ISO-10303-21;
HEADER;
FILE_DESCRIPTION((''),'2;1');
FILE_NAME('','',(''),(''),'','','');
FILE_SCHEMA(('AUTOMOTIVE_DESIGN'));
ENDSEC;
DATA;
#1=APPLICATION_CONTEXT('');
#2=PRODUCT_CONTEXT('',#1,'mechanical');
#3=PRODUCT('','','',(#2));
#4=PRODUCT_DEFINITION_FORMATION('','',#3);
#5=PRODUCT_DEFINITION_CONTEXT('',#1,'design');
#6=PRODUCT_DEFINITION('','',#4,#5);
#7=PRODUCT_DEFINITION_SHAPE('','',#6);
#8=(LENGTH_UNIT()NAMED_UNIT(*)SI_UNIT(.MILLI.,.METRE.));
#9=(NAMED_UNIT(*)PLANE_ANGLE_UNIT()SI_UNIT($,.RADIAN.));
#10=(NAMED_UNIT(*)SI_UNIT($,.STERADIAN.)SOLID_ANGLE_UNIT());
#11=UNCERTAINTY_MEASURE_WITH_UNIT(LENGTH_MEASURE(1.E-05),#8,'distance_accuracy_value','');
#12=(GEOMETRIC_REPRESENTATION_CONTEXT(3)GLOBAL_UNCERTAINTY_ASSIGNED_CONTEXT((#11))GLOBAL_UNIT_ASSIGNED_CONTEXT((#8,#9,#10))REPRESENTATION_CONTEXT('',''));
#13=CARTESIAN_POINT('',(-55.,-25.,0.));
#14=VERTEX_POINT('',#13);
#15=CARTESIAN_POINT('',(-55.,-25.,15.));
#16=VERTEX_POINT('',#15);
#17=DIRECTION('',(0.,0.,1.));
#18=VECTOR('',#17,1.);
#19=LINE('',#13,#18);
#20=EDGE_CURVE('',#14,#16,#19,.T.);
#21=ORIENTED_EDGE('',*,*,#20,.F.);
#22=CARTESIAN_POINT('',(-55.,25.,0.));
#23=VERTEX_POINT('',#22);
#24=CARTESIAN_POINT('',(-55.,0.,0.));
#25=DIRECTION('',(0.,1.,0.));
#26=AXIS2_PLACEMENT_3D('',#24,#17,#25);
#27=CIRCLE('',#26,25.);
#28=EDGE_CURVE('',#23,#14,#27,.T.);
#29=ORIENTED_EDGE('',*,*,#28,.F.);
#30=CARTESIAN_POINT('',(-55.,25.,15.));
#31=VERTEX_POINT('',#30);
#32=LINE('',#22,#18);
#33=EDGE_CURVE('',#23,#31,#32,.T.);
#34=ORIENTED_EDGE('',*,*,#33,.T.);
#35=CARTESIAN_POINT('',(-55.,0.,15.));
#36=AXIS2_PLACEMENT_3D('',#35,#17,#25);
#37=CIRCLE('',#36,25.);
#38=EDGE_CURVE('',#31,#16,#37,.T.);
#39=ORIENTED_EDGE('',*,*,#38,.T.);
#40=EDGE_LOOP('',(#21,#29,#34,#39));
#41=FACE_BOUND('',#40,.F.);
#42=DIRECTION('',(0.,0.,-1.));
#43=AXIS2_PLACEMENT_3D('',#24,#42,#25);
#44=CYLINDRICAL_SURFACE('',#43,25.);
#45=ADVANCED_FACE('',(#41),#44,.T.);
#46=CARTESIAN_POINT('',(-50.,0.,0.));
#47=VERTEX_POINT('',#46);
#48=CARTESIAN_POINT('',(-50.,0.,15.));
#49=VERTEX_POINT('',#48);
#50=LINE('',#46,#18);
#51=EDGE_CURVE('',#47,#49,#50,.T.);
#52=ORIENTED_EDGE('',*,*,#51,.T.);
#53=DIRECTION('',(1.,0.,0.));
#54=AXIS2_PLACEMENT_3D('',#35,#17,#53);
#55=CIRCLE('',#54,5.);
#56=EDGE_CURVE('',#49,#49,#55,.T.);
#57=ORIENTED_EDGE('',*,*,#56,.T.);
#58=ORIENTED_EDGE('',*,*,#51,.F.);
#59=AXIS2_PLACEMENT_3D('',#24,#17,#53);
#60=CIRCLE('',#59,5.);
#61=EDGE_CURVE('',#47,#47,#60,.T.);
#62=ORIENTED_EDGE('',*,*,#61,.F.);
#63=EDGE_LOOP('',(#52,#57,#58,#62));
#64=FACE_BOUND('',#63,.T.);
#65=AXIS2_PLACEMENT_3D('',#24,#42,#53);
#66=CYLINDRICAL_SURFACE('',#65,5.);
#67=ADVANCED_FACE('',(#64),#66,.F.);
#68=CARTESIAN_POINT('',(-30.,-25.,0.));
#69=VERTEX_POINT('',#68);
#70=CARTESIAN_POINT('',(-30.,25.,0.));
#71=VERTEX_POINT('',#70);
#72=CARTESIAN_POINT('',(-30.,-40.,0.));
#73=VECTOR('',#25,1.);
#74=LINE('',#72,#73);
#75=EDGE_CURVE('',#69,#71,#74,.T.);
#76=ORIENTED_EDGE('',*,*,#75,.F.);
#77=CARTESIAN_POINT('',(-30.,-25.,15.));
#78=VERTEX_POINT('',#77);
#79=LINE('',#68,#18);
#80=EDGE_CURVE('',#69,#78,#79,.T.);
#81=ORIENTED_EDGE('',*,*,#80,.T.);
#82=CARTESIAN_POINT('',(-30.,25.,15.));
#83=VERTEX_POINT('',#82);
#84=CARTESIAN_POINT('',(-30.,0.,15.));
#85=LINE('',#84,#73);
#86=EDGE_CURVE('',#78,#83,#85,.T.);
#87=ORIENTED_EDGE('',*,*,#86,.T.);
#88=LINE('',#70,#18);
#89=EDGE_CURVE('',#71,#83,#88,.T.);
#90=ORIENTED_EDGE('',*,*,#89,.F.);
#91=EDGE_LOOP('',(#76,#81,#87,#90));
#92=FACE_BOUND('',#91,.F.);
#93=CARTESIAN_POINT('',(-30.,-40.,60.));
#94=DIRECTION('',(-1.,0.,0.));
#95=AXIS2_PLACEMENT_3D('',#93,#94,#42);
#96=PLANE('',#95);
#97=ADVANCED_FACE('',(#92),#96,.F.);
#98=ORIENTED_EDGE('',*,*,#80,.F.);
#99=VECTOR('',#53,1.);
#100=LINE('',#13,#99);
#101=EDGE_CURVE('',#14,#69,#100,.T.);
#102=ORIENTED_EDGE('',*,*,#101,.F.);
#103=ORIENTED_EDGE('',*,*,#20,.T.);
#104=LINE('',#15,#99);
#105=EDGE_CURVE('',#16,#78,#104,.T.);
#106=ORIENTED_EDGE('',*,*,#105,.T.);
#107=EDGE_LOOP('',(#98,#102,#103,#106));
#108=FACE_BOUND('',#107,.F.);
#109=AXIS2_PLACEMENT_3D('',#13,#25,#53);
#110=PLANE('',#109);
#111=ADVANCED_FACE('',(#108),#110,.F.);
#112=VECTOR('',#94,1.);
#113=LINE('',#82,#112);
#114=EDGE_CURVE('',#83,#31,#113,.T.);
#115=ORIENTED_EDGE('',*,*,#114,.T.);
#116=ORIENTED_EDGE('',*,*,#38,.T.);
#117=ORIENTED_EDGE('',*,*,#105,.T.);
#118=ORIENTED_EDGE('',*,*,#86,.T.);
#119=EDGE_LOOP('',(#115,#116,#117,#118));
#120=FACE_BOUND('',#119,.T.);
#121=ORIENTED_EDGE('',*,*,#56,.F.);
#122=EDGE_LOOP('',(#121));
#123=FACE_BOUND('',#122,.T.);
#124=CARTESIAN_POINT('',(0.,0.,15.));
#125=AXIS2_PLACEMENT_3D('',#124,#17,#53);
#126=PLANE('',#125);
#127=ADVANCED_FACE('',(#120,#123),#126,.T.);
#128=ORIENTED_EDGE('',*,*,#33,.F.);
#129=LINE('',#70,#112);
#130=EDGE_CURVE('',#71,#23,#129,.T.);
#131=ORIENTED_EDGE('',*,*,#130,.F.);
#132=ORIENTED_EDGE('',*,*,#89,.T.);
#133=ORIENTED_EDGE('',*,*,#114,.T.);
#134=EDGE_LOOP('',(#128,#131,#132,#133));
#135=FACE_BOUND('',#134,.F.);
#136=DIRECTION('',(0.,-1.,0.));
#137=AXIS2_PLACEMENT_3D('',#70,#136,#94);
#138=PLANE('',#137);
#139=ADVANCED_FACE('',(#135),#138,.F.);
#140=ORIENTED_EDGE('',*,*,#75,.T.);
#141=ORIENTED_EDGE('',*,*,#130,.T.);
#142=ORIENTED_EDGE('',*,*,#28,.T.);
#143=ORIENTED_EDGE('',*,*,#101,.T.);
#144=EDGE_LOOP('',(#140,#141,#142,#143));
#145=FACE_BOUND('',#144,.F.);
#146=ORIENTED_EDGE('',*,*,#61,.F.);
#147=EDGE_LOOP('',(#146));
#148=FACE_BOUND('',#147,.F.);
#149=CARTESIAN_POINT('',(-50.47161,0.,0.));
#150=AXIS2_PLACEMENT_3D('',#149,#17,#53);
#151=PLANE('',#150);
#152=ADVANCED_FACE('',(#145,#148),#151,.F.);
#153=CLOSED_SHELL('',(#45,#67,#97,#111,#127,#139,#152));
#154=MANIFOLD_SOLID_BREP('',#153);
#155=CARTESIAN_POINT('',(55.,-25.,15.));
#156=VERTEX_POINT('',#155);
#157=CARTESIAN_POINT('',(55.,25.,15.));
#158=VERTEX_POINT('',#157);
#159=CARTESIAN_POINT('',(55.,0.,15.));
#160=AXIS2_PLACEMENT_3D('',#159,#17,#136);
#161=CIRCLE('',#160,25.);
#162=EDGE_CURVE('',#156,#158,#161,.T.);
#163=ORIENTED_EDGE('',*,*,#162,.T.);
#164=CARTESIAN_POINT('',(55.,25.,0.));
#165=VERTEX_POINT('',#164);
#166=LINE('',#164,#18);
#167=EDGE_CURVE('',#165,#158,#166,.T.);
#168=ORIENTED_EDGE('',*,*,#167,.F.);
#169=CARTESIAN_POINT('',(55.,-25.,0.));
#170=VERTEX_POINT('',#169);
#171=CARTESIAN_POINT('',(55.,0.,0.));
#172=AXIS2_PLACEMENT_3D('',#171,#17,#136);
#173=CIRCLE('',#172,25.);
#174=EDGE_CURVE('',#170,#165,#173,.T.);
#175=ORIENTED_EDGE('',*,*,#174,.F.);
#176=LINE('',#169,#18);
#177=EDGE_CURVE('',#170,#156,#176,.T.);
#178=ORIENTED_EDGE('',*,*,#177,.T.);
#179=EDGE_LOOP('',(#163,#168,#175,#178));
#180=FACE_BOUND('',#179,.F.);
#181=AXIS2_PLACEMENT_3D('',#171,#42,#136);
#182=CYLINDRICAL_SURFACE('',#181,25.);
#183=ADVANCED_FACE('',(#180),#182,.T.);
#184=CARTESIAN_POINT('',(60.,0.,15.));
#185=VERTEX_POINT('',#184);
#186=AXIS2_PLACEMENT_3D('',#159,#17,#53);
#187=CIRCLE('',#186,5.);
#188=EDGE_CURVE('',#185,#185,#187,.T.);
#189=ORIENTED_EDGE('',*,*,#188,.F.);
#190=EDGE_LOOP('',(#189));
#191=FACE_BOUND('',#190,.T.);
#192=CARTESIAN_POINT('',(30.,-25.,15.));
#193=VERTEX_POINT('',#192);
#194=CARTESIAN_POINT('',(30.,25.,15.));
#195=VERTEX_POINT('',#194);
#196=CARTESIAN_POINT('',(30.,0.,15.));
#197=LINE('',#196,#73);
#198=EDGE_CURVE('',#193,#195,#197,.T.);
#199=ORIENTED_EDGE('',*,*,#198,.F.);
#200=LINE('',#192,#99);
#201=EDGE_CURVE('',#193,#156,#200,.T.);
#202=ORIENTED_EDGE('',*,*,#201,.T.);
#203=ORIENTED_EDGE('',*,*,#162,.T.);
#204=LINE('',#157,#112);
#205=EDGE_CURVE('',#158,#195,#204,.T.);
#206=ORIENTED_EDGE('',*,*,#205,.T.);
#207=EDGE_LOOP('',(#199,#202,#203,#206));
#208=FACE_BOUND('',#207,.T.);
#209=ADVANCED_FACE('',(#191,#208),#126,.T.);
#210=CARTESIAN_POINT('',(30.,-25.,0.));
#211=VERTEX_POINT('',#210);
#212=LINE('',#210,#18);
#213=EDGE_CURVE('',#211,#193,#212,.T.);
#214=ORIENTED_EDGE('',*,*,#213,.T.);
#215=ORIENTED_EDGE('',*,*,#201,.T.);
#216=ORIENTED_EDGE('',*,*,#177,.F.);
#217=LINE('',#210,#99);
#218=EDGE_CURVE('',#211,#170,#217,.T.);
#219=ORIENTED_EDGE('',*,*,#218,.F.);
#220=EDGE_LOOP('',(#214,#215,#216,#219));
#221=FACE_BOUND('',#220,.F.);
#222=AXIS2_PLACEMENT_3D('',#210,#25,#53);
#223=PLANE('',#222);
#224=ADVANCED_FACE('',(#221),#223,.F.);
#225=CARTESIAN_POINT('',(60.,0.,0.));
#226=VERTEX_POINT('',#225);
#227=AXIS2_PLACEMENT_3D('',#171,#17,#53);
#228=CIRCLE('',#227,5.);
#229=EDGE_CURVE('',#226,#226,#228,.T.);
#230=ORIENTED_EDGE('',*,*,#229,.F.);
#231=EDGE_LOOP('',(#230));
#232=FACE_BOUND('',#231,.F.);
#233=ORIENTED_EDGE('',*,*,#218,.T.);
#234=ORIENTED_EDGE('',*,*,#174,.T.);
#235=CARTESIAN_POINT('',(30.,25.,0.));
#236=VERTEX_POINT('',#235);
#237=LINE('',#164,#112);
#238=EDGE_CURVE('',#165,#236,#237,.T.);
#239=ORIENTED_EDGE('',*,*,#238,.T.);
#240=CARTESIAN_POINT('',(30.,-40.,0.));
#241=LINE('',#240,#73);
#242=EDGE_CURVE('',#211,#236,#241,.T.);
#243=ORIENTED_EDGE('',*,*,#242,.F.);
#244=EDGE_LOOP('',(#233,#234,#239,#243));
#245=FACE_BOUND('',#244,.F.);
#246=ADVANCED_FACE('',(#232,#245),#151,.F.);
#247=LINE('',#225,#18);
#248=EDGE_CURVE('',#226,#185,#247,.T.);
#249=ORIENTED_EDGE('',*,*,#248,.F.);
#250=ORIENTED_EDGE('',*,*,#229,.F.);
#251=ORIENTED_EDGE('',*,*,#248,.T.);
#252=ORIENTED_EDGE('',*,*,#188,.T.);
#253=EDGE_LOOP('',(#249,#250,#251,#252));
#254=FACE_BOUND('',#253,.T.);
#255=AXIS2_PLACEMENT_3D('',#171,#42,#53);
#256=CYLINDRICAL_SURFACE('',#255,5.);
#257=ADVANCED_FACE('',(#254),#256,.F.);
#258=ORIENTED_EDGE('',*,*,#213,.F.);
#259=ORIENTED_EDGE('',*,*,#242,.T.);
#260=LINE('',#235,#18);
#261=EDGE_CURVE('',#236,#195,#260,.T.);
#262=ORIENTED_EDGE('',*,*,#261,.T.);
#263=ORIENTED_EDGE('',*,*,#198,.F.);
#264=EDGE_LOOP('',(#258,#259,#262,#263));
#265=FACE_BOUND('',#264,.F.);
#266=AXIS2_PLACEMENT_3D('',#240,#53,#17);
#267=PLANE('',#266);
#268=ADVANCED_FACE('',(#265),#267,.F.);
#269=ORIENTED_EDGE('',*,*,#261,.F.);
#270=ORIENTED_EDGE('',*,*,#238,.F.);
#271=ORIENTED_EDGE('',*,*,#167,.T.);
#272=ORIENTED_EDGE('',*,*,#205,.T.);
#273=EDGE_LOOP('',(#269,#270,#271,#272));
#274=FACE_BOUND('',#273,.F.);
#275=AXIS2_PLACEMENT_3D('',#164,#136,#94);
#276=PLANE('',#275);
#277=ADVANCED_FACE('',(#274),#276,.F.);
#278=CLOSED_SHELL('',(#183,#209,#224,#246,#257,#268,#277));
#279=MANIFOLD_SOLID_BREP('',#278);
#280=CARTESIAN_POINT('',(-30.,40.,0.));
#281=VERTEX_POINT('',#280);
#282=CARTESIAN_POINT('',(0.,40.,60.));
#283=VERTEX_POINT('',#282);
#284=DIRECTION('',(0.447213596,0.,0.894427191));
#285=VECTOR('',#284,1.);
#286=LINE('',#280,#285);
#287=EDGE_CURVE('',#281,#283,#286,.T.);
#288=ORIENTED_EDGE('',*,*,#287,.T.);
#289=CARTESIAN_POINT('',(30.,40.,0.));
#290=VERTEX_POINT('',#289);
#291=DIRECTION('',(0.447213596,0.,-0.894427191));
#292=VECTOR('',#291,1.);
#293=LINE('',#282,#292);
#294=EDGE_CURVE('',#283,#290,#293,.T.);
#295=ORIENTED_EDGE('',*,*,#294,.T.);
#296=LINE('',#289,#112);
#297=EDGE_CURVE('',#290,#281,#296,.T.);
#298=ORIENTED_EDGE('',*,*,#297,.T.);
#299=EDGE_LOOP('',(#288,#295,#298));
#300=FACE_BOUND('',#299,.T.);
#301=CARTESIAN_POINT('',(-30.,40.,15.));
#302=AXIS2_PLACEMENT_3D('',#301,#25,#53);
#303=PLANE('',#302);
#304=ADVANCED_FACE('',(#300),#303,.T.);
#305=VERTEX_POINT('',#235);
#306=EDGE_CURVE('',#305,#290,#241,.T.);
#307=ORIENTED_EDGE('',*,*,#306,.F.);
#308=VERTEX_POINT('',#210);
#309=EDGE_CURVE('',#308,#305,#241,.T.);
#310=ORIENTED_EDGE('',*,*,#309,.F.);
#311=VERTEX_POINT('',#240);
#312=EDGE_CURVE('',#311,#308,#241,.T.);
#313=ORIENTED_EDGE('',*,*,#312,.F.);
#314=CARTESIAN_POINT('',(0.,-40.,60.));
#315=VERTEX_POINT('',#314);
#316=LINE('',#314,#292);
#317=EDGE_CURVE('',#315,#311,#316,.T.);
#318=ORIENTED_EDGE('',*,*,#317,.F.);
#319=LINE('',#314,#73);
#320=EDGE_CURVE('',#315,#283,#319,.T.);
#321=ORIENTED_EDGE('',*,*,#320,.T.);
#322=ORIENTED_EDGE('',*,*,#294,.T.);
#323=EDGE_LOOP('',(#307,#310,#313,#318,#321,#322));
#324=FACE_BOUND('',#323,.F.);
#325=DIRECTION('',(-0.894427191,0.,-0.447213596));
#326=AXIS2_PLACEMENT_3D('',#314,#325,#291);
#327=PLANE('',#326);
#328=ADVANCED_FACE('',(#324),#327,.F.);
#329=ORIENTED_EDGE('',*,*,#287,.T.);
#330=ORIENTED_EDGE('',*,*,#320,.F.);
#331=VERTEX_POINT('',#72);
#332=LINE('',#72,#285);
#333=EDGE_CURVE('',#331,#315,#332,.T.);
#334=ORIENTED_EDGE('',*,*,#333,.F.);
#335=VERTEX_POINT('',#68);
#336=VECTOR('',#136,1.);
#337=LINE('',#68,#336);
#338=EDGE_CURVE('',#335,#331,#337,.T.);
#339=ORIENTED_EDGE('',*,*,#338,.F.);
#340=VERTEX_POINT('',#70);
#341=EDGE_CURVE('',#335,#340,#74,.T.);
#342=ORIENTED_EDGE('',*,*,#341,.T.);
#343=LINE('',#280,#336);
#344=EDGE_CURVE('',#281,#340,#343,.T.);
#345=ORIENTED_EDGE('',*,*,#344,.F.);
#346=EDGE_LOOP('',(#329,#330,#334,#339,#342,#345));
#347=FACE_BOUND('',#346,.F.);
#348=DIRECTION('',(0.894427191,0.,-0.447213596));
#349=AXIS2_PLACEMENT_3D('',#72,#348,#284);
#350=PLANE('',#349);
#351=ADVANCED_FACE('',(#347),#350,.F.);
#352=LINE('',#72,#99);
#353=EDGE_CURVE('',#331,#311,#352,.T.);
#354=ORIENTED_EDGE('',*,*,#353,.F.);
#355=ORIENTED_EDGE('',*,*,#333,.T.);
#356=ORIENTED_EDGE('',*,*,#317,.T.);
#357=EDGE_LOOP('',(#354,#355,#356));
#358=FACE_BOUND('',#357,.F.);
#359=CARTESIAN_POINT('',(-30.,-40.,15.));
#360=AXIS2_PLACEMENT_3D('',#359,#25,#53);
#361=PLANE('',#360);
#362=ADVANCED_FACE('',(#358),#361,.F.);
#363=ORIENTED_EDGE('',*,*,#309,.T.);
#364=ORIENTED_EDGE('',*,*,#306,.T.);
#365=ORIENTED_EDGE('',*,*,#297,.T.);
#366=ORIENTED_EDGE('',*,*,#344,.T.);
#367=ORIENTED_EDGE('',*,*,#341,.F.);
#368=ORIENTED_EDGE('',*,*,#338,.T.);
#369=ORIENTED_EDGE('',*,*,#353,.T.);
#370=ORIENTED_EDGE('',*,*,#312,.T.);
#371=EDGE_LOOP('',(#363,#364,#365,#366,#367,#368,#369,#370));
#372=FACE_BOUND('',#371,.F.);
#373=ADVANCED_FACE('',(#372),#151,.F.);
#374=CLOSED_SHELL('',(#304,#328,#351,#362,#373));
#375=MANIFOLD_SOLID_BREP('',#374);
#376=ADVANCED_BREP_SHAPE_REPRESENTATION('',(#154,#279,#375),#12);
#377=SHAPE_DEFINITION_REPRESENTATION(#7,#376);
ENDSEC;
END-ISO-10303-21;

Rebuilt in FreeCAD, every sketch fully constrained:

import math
import FreeCAD as App
import Part
import Sketcher
from FreeCAD import Vector


def add_polygon(sketch, points):
    """Adds a closed chain of lines whose ends are joined by coincident constraints."""
    first, n = sketch.GeometryCount, len(points)
    for a, b in zip(points, points[1:] + points[:1]):
        sketch.addGeometry(Part.LineSegment(App.Vector(*a, 0), App.Vector(*b, 0)), False)
    for i in range(n):
        sketch.addConstraint(Sketcher.Constraint("Coincident", first + i, 2, first + (i + 1) % n, 1))

doc = App.newDocument("Part")
body = doc.addObject("PartDesign::Body", "Body")
body.AllowCompound = True

# Sketch on XY plane
sketch1 = doc.addObject("Sketcher::SketchObject", "Sketch")
body.addObject(sketch1)
sketch1.AttachmentSupport = (doc.XY_Plane, [""])
sketch1.MapMode = "FlatFace"
sketch1.addGeometry([
    Part.LineSegment(Vector(-55, -25, 0), Vector(-30, -25, 0)),  # 0
    Part.LineSegment(Vector(-30, -25, 0), Vector(-30, -40, 0)),  # 1
    Part.LineSegment(Vector(-30, -40, 0), Vector(30, -40, 0)),  # 2
    Part.LineSegment(Vector(30, -40, 0), Vector(30, -25, 0)),  # 3
    Part.LineSegment(Vector(30, -25, 0), Vector(55, -25, 0)),  # 4
    Part.ArcOfCircle(Part.Circle(Vector(55, 0, 0), Vector(0, 0, 1), 25), math.radians(-90), math.radians(90)),  # 5
    Part.LineSegment(Vector(55, 25, 0), Vector(30, 25, 0)),  # 6
    Part.LineSegment(Vector(30, 25, 0), Vector(30, 40, 0)),  # 7
    Part.LineSegment(Vector(30, 40, 0), Vector(-30, 40, 0)),  # 8
    Part.LineSegment(Vector(-30, 40, 0), Vector(-30, 25, 0)),  # 9
    Part.LineSegment(Vector(-30, 25, 0), Vector(-55, 25, 0)),  # 10
    Part.ArcOfCircle(Part.Circle(Vector(-55, 0, 0), Vector(0, 0, 1), 25), math.radians(90), math.radians(270)),  # 11
    Part.Circle(Vector(-55, 0, 0), Vector(0, 0, 1), 5),  # 12
    Part.Circle(Vector(55, 0, 0), Vector(0, 0, 1), 5),  # 13
], False)
sketch1.addConstraint([
    Sketcher.Constraint("Coincident", 0, 2, 1, 1),
    Sketcher.Constraint("Coincident", 1, 2, 2, 1),
    Sketcher.Constraint("Coincident", 2, 2, 3, 1),
    Sketcher.Constraint("Coincident", 3, 2, 4, 1),
    Sketcher.Constraint("Tangent", 4, 2, 5, 1),
    Sketcher.Constraint("Tangent", 5, 2, 6, 1),
    Sketcher.Constraint("Coincident", 6, 2, 7, 1),
    Sketcher.Constraint("Coincident", 7, 2, 8, 1),
    Sketcher.Constraint("Coincident", 8, 2, 9, 1),
    Sketcher.Constraint("Coincident", 9, 2, 10, 1),
    Sketcher.Constraint("Tangent", 10, 2, 11, 1),
    Sketcher.Constraint("Tangent", 11, 2, 0, 1),
    Sketcher.Constraint("Horizontal", 0),
    Sketcher.Constraint("Vertical", 1),
    Sketcher.Constraint("Horizontal", 2),
    Sketcher.Constraint("Vertical", 3),
    Sketcher.Constraint("Horizontal", 4),
    Sketcher.Constraint("Horizontal", 6),
    Sketcher.Constraint("Vertical", 7),
    Sketcher.Constraint("Horizontal", 8),
    Sketcher.Constraint("Vertical", 9),
    Sketcher.Constraint("Horizontal", 10),
    Sketcher.Constraint("Coincident", 12, 3, 11, 3),
    Sketcher.Constraint("Coincident", 13, 3, 5, 3),
    Sketcher.Constraint("Equal", 5, 11),
    Sketcher.Constraint("Equal", 12, 13),
    Sketcher.Constraint("Symmetric", 5, 3, 11, 3, -1, 1),
    Sketcher.Constraint("Symmetric", 1, 2, 7, 2, -1, 1),
    Sketcher.Constraint("Symmetric", 0, 2, 3, 2, -2),
    Sketcher.Constraint("Vertical", 1, 2, 8, 2),
    Sketcher.Constraint("Diameter", 12, 10.0),
    Sketcher.Constraint("Radius", 5, 25.0),
    Sketcher.Constraint("DistanceX", 0, 1, 0, 2, 25.0),
    Sketcher.Constraint("DistanceX", 2, 1, 2, 2, 60.0),
    Sketcher.Constraint("DistanceY", 1, 2, 1, 1, 15.0),
])
pad1 = doc.addObject("PartDesign::Pad", "Pad")
body.addObject(pad1)
pad1.Profile = sketch1
pad1.Length = 60

# Sketch on XY plane
sketch2 = doc.addObject("Sketcher::SketchObject", "Sketch001")
body.addObject(sketch2)
sketch2.AttachmentSupport = (doc.XY_Plane, [""])
sketch2.MapMode = "FlatFace"
sketch2.AttachmentOffset = App.Placement(Vector(0, 0, 60), App.Rotation())
sketch2.addGeometry([
    Part.LineSegment(Vector(-30, -25, 0), Vector(-30, -40, 0)),  # 0
    Part.LineSegment(Vector(-30, -40, 0), Vector(30, -40, 0)),  # 1
    Part.LineSegment(Vector(30, -40, 0), Vector(30, -25, 0)),  # 2
    Part.LineSegment(Vector(30, -25, 0), Vector(55, -25, 0)),  # 3
    Part.ArcOfCircle(Part.Circle(Vector(55, 0, 0), Vector(0, 0, 1), 25), math.radians(-90), math.radians(90)),  # 4
    Part.LineSegment(Vector(55, 25, 0), Vector(30, 25, 0)),  # 5
    Part.LineSegment(Vector(30, 25, 0), Vector(30, 40, 0)),  # 6
    Part.LineSegment(Vector(30, 40, 0), Vector(-30, 40, 0)),  # 7
    Part.LineSegment(Vector(-30, 40, 0), Vector(-30, 25, 0)),  # 8
    Part.LineSegment(Vector(-30, 25, 0), Vector(-55, 25, 0)),  # 9
    Part.ArcOfCircle(Part.Circle(Vector(-55, 0, 0), Vector(0, 0, 1), 25), math.radians(90), math.radians(270)),  # 10
    Part.LineSegment(Vector(-55, -25, 0), Vector(-30, -25, 0)),  # 11
    Part.Circle(Vector(-55, 0, 0), Vector(0, 0, 1), 5),  # 12
    Part.Circle(Vector(55, 0, 0), Vector(0, 0, 1), 5),  # 13
], False)
sketch2.addConstraint([
    Sketcher.Constraint("Coincident", 0, 2, 1, 1),
    Sketcher.Constraint("Coincident", 1, 2, 2, 1),
    Sketcher.Constraint("Coincident", 2, 2, 3, 1),
    Sketcher.Constraint("Tangent", 3, 2, 4, 1),
    Sketcher.Constraint("Tangent", 4, 2, 5, 1),
    Sketcher.Constraint("Coincident", 5, 2, 6, 1),
    Sketcher.Constraint("Coincident", 6, 2, 7, 1),
    Sketcher.Constraint("Coincident", 7, 2, 8, 1),
    Sketcher.Constraint("Coincident", 8, 2, 9, 1),
    Sketcher.Constraint("Tangent", 9, 2, 10, 1),
    Sketcher.Constraint("Tangent", 10, 2, 11, 1),
    Sketcher.Constraint("Coincident", 11, 2, 0, 1),
    Sketcher.Constraint("Vertical", 0),
    Sketcher.Constraint("Horizontal", 1),
    Sketcher.Constraint("Vertical", 2),
    Sketcher.Constraint("Horizontal", 3),
    Sketcher.Constraint("Horizontal", 5),
    Sketcher.Constraint("Vertical", 6),
    Sketcher.Constraint("Horizontal", 7),
    Sketcher.Constraint("Vertical", 8),
    Sketcher.Constraint("Horizontal", 9),
    Sketcher.Constraint("Horizontal", 11),
    Sketcher.Constraint("Coincident", 12, 3, 10, 3),
    Sketcher.Constraint("Coincident", 13, 3, 4, 3),
    Sketcher.Constraint("Equal", 4, 10),
    Sketcher.Constraint("Equal", 12, 13),
    Sketcher.Constraint("Symmetric", 4, 3, 10, 3, -1, 1),
    Sketcher.Constraint("Symmetric", 0, 2, 6, 2, -1, 1),
    Sketcher.Constraint("Symmetric", 5, 2, 8, 2, -2),
    Sketcher.Constraint("Vertical", 2, 2, 5, 2),
    Sketcher.Constraint("Diameter", 12, 10.0),
    Sketcher.Constraint("Radius", 4, 25.0),
    Sketcher.Constraint("DistanceX", 1, 1, 1, 2, 60.0),
    Sketcher.Constraint("DistanceX", 3, 1, 3, 2, 25.0),
    Sketcher.Constraint("DistanceY", 0, 2, 0, 1, 15.0),
])
pocket1 = doc.addObject("PartDesign::Pocket", "Pocket")
body.addObject(pocket1)
pocket1.Profile = sketch2
pocket1.Length = 45

# Sketch on XY plane
sketch3 = doc.addObject("Sketcher::SketchObject", "Sketch002")
body.addObject(sketch3)
sketch3.AttachmentSupport = (doc.XY_Plane, [""])
sketch3.MapMode = "FlatFace"
sketch3.AttachmentOffset = App.Placement(Vector(0, 0, 15), App.Rotation())
add_polygon(sketch3, [(-30, 40), (-30, -40), (30, -40), (30, 40)])  # lines 0-3
sketch3.addConstraint([
    Sketcher.Constraint("Vertical", 0),
    Sketcher.Constraint("Horizontal", 1),
    Sketcher.Constraint("Vertical", 2),
    Sketcher.Constraint("Horizontal", 3),
    Sketcher.Constraint("Symmetric", 0, 2, 2, 2, -1, 1),
    Sketcher.Constraint("DistanceX", 1, 1, 1, 2, 60.0),
    Sketcher.Constraint("DistanceY", 0, 2, 0, 1, 80.0),
])
pad2 = doc.addObject("PartDesign::Pad", "Pad001")
body.addObject(pad2)
pad2.Profile = sketch3
pad2.Length = 45

# Sketch on XZ plane
sketch4 = doc.addObject("Sketcher::SketchObject", "Sketch003")
body.addObject(sketch4)
sketch4.AttachmentSupport = (doc.XZ_Plane, [""])
sketch4.MapMode = "FlatFace"
sketch4.AttachmentOffset = App.Placement(Vector(0, 0, 40), App.Rotation())
add_polygon(sketch4, [(-30, 60), (-30, 0), (0, 60)])  # lines 0-2
add_polygon(sketch4, [(30, 60), (0, 60), (30, 0)])  # lines 3-5
sketch4.addConstraint([
    Sketcher.Constraint("Vertical", 0),
    Sketcher.Constraint("Horizontal", 2),
    Sketcher.Constraint("Horizontal", 3),
    Sketcher.Constraint("Vertical", 5),
    Sketcher.Constraint("Coincident", 3, 2, 1, 2),
    Sketcher.Constraint("Symmetric", 0, 2, 4, 2, -1, 1),
    Sketcher.Constraint("PointOnObject", 0, 2, -1),
    Sketcher.Constraint("PointOnObject", 1, 2, -2),
    Sketcher.Constraint("DistanceX", 2, 2, 2, 1, 30.0),
    Sketcher.Constraint("DistanceY", 0, 2, 0, 1, 60.0),
])
pocket2 = doc.addObject("PartDesign::Pocket", "Pocket001")
body.addObject(pocket2)
pocket2.Profile = sketch4
pocket2.Length = 80

doc.recompute()
